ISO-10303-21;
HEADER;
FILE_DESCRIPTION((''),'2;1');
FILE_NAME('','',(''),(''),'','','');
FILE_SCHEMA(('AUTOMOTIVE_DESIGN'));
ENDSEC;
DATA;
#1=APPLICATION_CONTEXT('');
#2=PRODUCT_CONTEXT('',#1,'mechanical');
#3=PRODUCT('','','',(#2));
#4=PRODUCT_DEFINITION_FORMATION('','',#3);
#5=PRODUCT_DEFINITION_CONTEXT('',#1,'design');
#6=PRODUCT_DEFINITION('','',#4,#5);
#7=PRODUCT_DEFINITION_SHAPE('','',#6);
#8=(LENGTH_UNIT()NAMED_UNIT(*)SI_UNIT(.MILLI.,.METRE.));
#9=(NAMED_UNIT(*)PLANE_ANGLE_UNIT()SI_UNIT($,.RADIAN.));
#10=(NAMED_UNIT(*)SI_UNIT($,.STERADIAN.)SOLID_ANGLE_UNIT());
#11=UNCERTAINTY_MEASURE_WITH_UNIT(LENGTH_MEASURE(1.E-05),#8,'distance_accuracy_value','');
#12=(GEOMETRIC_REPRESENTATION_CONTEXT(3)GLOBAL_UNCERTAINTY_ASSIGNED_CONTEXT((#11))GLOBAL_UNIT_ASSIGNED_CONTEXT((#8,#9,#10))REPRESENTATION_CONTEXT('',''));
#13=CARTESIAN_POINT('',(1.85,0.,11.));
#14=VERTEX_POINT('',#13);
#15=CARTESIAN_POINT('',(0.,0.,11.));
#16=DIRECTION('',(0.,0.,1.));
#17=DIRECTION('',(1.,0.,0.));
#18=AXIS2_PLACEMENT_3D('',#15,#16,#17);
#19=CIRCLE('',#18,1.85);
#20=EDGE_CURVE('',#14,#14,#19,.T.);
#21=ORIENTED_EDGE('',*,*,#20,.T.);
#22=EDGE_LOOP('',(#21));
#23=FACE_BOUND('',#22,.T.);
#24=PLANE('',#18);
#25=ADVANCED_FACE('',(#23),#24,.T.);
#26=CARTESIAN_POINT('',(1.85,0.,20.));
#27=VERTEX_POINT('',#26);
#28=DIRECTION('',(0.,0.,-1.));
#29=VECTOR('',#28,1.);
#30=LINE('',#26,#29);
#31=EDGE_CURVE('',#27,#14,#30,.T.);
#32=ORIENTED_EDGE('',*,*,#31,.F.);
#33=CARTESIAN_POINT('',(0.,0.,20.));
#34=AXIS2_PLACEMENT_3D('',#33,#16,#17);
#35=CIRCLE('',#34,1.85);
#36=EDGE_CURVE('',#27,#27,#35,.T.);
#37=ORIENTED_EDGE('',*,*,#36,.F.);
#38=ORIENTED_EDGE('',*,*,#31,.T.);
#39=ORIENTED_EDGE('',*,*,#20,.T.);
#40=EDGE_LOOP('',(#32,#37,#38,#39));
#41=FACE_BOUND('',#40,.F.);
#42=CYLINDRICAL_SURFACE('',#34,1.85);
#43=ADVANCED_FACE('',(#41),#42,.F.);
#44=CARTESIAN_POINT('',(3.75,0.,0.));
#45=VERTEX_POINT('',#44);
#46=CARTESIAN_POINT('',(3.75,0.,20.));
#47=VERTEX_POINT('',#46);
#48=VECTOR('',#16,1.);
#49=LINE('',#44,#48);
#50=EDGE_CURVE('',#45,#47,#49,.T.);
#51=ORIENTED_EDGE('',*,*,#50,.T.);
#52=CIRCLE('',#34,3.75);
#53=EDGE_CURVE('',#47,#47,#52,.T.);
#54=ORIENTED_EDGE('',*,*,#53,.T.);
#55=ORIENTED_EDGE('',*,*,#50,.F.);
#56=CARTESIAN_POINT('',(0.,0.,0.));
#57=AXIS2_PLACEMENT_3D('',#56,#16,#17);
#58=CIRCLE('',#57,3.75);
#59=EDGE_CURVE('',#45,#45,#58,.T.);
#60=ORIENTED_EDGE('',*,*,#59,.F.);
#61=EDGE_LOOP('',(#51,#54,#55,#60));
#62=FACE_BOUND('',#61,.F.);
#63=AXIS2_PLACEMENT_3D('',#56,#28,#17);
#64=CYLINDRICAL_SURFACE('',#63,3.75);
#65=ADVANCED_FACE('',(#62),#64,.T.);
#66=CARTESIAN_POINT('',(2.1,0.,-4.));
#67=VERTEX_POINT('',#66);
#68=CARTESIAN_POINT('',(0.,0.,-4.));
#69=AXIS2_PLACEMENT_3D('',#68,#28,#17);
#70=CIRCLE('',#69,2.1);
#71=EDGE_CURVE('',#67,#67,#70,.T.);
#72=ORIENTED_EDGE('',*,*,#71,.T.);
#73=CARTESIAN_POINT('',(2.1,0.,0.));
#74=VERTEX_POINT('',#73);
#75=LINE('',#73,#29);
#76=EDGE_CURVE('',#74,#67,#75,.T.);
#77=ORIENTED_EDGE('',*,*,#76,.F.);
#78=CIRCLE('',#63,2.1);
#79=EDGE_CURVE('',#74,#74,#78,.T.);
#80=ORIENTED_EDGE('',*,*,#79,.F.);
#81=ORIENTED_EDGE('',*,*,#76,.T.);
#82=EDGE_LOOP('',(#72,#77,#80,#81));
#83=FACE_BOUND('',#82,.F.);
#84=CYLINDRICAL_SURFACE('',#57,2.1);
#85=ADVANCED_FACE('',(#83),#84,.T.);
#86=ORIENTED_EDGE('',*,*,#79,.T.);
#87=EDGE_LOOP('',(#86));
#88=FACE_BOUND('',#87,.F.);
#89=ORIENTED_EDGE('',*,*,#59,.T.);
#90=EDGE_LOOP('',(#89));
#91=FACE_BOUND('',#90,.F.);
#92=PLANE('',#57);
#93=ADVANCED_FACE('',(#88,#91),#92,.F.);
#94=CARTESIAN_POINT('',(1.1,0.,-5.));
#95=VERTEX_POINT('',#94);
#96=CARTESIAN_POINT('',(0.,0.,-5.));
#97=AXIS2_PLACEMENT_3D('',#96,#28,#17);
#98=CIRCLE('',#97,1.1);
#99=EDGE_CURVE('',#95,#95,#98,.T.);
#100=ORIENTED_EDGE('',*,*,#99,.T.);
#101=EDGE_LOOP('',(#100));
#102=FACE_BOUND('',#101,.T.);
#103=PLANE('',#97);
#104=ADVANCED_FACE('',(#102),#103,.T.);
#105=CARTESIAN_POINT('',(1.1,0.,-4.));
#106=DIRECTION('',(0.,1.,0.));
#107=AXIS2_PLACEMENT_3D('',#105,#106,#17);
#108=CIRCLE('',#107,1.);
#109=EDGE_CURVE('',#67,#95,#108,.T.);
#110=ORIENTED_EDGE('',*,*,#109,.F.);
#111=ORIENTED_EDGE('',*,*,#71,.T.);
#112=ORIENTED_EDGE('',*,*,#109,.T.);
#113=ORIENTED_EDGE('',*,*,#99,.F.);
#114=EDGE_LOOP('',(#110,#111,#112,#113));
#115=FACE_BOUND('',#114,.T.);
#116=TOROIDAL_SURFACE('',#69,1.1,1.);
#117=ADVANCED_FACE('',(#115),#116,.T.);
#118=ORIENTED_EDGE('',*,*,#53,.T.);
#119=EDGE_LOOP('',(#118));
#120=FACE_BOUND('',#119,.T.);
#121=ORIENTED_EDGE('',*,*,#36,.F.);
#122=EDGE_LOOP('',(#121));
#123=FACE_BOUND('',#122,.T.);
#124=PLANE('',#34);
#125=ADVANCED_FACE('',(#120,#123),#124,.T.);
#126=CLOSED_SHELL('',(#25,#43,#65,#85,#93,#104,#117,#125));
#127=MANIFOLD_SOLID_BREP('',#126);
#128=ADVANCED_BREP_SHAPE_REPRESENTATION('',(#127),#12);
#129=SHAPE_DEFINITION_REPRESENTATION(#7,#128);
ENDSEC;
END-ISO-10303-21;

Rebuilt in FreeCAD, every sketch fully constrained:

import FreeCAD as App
import Part
import Sketcher
Q = App.Units.Quantity


def edges_at(feature, points):
    """Names of the edges that pass closest to the given points."""
    edges = feature.Shape.Edges
    near = lambda p: min(range(len(edges)), key=lambda i: edges[i].distToShape(Part.Vertex(*p))[0])
    return sorted({f"Edge{near(p) + 1}" for p in points})

doc = App.newDocument("Part")
body = doc.addObject("PartDesign::Body", "Body")

sketch1 = body.newObject("Sketcher::SketchObject", "Sketch")
sketch1.AttachmentSupport = (doc.getObject("XY_Plane"), [""])
sketch1.MapMode = "FlatFace"
sketch1.addGeometry(Part.Circle(App.Vector(0, 0, 0), App.Vector(0, 0, 1), 3.75), False)
sketch1.addConstraint([
    Sketcher.Constraint("Coincident", 0, 3, -1, 1),
    Sketcher.Constraint("Diameter", 0, Q("7.5 mm")),
])
pad1 = body.newObject("PartDesign::Pad", "Pad")
pad1.Profile = sketch1
pad1.Length = 20

sketch2 = body.newObject("Sketcher::SketchObject", "Sketch001")
sketch2.AttachmentSupport = (doc.getObject("XY_Plane"), [""])
sketch2.MapMode = "FlatFace"
sketch2.AttachmentOffset = App.Placement(App.Vector(0, 0, 20), App.Rotation())
sketch2.addGeometry(Part.Circle(App.Vector(0, 0, 0), App.Vector(0, 0, 1), 1.85), False)
sketch2.addConstraint([
    Sketcher.Constraint("Coincident", 0, 3, -1, 1),
    Sketcher.Constraint("Diameter", 0, Q("3.7 mm")),
])
pocket1 = body.newObject("PartDesign::Pocket", "Pocket")
pocket1.Profile = sketch2
pocket1.Length = 9

sketch3 = body.newObject("Sketcher::SketchObject", "Sketch002")
sketch3.AttachmentSupport = (doc.getObject("XY_Plane"), [""])
sketch3.MapMode = "FlatFace"
sketch3.addGeometry(Part.Circle(App.Vector(0, 0, 0), App.Vector(0, 0, 1), 2.1), False)
sketch3.addConstraint([
    Sketcher.Constraint("Coincident", 0, 3, -1, 1),
    Sketcher.Constraint("Diameter", 0, Q("4.2 mm")),
])
pad2 = body.newObject("PartDesign::Pad", "Pad001")
pad2.Profile = sketch3
pad2.Length = 5
pad2.Reversed = True
doc.recompute()

fillet = body.newObject("PartDesign::Fillet", "Fillet")
fillet.Base = (pad2, edges_at(pad2, [(-2.1, 0, -5)]))
fillet.Radius = 1

doc.recompute()
